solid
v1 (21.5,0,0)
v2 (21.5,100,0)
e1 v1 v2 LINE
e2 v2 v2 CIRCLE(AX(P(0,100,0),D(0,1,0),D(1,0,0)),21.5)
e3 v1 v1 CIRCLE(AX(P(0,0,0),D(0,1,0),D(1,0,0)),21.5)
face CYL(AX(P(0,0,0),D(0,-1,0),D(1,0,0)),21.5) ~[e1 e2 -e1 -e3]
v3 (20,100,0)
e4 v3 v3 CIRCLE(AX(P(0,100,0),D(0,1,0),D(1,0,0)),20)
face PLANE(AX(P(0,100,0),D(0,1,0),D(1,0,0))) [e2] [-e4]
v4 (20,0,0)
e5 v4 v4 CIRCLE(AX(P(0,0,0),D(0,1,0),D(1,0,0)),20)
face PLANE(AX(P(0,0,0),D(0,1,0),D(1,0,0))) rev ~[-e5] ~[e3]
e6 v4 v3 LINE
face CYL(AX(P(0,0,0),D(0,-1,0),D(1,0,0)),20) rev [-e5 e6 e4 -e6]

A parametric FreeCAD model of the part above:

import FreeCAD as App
import Part
import Sketcher
from FreeCAD import Vector
Q = App.Units.Quantity

doc = App.newDocument("Part")
params = doc.addObject("Spreadsheet::Sheet", "Params")
for row, (alias, value) in enumerate([
    ("sketch1_diameter", "40 mm"),
    ("sketch1_diameter2", "43 mm"),
    ("pad1_length", "100 mm"),
], start=1):
    params.set(f"A{row}", alias)
    params.set(f"B{row}", "=" + value)
    params.setAlias(f"B{row}", alias)

body = doc.addObject("PartDesign::Body", "Body")

# Sketch on XZ plane
sketch1 = body.newObject("Sketcher::SketchObject", "Sketch")
sketch1.AttachmentSupport = (doc.getObject("XZ_Plane"), [""])
sketch1.MapMode = "FlatFace"
sketch1.addGeometry(Part.Circle(Vector(0, 0, 0), Vector(0, 0, 1), 22), False)
sketch1.addGeometry(Part.Circle(Vector(0, 0, 0), Vector(0, 0, 1), 20), False)
sketch1.addConstraint(Sketcher.Constraint("Coincident", 0, 3, -1, 1))
sketch1.addConstraint(Sketcher.Constraint("Coincident", 1, 3, -1, 1))
sketch1.addConstraint(Sketcher.Constraint("Diameter", 1, Q("40 mm")))
sketch1.addConstraint(Sketcher.Constraint("Diameter", 0, Q("43 mm")))
sketch1.setExpression("Constraints[2]", "Params.sketch1_diameter")
sketch1.setExpression("Constraints[3]", "Params.sketch1_diameter2")
pad1 = body.newObject("PartDesign::Pad", "Pad")
pad1.Profile = sketch1
pad1.setExpression("Length", "Params.pad1_length")
pad1.Reversed = True

doc.recompute()
